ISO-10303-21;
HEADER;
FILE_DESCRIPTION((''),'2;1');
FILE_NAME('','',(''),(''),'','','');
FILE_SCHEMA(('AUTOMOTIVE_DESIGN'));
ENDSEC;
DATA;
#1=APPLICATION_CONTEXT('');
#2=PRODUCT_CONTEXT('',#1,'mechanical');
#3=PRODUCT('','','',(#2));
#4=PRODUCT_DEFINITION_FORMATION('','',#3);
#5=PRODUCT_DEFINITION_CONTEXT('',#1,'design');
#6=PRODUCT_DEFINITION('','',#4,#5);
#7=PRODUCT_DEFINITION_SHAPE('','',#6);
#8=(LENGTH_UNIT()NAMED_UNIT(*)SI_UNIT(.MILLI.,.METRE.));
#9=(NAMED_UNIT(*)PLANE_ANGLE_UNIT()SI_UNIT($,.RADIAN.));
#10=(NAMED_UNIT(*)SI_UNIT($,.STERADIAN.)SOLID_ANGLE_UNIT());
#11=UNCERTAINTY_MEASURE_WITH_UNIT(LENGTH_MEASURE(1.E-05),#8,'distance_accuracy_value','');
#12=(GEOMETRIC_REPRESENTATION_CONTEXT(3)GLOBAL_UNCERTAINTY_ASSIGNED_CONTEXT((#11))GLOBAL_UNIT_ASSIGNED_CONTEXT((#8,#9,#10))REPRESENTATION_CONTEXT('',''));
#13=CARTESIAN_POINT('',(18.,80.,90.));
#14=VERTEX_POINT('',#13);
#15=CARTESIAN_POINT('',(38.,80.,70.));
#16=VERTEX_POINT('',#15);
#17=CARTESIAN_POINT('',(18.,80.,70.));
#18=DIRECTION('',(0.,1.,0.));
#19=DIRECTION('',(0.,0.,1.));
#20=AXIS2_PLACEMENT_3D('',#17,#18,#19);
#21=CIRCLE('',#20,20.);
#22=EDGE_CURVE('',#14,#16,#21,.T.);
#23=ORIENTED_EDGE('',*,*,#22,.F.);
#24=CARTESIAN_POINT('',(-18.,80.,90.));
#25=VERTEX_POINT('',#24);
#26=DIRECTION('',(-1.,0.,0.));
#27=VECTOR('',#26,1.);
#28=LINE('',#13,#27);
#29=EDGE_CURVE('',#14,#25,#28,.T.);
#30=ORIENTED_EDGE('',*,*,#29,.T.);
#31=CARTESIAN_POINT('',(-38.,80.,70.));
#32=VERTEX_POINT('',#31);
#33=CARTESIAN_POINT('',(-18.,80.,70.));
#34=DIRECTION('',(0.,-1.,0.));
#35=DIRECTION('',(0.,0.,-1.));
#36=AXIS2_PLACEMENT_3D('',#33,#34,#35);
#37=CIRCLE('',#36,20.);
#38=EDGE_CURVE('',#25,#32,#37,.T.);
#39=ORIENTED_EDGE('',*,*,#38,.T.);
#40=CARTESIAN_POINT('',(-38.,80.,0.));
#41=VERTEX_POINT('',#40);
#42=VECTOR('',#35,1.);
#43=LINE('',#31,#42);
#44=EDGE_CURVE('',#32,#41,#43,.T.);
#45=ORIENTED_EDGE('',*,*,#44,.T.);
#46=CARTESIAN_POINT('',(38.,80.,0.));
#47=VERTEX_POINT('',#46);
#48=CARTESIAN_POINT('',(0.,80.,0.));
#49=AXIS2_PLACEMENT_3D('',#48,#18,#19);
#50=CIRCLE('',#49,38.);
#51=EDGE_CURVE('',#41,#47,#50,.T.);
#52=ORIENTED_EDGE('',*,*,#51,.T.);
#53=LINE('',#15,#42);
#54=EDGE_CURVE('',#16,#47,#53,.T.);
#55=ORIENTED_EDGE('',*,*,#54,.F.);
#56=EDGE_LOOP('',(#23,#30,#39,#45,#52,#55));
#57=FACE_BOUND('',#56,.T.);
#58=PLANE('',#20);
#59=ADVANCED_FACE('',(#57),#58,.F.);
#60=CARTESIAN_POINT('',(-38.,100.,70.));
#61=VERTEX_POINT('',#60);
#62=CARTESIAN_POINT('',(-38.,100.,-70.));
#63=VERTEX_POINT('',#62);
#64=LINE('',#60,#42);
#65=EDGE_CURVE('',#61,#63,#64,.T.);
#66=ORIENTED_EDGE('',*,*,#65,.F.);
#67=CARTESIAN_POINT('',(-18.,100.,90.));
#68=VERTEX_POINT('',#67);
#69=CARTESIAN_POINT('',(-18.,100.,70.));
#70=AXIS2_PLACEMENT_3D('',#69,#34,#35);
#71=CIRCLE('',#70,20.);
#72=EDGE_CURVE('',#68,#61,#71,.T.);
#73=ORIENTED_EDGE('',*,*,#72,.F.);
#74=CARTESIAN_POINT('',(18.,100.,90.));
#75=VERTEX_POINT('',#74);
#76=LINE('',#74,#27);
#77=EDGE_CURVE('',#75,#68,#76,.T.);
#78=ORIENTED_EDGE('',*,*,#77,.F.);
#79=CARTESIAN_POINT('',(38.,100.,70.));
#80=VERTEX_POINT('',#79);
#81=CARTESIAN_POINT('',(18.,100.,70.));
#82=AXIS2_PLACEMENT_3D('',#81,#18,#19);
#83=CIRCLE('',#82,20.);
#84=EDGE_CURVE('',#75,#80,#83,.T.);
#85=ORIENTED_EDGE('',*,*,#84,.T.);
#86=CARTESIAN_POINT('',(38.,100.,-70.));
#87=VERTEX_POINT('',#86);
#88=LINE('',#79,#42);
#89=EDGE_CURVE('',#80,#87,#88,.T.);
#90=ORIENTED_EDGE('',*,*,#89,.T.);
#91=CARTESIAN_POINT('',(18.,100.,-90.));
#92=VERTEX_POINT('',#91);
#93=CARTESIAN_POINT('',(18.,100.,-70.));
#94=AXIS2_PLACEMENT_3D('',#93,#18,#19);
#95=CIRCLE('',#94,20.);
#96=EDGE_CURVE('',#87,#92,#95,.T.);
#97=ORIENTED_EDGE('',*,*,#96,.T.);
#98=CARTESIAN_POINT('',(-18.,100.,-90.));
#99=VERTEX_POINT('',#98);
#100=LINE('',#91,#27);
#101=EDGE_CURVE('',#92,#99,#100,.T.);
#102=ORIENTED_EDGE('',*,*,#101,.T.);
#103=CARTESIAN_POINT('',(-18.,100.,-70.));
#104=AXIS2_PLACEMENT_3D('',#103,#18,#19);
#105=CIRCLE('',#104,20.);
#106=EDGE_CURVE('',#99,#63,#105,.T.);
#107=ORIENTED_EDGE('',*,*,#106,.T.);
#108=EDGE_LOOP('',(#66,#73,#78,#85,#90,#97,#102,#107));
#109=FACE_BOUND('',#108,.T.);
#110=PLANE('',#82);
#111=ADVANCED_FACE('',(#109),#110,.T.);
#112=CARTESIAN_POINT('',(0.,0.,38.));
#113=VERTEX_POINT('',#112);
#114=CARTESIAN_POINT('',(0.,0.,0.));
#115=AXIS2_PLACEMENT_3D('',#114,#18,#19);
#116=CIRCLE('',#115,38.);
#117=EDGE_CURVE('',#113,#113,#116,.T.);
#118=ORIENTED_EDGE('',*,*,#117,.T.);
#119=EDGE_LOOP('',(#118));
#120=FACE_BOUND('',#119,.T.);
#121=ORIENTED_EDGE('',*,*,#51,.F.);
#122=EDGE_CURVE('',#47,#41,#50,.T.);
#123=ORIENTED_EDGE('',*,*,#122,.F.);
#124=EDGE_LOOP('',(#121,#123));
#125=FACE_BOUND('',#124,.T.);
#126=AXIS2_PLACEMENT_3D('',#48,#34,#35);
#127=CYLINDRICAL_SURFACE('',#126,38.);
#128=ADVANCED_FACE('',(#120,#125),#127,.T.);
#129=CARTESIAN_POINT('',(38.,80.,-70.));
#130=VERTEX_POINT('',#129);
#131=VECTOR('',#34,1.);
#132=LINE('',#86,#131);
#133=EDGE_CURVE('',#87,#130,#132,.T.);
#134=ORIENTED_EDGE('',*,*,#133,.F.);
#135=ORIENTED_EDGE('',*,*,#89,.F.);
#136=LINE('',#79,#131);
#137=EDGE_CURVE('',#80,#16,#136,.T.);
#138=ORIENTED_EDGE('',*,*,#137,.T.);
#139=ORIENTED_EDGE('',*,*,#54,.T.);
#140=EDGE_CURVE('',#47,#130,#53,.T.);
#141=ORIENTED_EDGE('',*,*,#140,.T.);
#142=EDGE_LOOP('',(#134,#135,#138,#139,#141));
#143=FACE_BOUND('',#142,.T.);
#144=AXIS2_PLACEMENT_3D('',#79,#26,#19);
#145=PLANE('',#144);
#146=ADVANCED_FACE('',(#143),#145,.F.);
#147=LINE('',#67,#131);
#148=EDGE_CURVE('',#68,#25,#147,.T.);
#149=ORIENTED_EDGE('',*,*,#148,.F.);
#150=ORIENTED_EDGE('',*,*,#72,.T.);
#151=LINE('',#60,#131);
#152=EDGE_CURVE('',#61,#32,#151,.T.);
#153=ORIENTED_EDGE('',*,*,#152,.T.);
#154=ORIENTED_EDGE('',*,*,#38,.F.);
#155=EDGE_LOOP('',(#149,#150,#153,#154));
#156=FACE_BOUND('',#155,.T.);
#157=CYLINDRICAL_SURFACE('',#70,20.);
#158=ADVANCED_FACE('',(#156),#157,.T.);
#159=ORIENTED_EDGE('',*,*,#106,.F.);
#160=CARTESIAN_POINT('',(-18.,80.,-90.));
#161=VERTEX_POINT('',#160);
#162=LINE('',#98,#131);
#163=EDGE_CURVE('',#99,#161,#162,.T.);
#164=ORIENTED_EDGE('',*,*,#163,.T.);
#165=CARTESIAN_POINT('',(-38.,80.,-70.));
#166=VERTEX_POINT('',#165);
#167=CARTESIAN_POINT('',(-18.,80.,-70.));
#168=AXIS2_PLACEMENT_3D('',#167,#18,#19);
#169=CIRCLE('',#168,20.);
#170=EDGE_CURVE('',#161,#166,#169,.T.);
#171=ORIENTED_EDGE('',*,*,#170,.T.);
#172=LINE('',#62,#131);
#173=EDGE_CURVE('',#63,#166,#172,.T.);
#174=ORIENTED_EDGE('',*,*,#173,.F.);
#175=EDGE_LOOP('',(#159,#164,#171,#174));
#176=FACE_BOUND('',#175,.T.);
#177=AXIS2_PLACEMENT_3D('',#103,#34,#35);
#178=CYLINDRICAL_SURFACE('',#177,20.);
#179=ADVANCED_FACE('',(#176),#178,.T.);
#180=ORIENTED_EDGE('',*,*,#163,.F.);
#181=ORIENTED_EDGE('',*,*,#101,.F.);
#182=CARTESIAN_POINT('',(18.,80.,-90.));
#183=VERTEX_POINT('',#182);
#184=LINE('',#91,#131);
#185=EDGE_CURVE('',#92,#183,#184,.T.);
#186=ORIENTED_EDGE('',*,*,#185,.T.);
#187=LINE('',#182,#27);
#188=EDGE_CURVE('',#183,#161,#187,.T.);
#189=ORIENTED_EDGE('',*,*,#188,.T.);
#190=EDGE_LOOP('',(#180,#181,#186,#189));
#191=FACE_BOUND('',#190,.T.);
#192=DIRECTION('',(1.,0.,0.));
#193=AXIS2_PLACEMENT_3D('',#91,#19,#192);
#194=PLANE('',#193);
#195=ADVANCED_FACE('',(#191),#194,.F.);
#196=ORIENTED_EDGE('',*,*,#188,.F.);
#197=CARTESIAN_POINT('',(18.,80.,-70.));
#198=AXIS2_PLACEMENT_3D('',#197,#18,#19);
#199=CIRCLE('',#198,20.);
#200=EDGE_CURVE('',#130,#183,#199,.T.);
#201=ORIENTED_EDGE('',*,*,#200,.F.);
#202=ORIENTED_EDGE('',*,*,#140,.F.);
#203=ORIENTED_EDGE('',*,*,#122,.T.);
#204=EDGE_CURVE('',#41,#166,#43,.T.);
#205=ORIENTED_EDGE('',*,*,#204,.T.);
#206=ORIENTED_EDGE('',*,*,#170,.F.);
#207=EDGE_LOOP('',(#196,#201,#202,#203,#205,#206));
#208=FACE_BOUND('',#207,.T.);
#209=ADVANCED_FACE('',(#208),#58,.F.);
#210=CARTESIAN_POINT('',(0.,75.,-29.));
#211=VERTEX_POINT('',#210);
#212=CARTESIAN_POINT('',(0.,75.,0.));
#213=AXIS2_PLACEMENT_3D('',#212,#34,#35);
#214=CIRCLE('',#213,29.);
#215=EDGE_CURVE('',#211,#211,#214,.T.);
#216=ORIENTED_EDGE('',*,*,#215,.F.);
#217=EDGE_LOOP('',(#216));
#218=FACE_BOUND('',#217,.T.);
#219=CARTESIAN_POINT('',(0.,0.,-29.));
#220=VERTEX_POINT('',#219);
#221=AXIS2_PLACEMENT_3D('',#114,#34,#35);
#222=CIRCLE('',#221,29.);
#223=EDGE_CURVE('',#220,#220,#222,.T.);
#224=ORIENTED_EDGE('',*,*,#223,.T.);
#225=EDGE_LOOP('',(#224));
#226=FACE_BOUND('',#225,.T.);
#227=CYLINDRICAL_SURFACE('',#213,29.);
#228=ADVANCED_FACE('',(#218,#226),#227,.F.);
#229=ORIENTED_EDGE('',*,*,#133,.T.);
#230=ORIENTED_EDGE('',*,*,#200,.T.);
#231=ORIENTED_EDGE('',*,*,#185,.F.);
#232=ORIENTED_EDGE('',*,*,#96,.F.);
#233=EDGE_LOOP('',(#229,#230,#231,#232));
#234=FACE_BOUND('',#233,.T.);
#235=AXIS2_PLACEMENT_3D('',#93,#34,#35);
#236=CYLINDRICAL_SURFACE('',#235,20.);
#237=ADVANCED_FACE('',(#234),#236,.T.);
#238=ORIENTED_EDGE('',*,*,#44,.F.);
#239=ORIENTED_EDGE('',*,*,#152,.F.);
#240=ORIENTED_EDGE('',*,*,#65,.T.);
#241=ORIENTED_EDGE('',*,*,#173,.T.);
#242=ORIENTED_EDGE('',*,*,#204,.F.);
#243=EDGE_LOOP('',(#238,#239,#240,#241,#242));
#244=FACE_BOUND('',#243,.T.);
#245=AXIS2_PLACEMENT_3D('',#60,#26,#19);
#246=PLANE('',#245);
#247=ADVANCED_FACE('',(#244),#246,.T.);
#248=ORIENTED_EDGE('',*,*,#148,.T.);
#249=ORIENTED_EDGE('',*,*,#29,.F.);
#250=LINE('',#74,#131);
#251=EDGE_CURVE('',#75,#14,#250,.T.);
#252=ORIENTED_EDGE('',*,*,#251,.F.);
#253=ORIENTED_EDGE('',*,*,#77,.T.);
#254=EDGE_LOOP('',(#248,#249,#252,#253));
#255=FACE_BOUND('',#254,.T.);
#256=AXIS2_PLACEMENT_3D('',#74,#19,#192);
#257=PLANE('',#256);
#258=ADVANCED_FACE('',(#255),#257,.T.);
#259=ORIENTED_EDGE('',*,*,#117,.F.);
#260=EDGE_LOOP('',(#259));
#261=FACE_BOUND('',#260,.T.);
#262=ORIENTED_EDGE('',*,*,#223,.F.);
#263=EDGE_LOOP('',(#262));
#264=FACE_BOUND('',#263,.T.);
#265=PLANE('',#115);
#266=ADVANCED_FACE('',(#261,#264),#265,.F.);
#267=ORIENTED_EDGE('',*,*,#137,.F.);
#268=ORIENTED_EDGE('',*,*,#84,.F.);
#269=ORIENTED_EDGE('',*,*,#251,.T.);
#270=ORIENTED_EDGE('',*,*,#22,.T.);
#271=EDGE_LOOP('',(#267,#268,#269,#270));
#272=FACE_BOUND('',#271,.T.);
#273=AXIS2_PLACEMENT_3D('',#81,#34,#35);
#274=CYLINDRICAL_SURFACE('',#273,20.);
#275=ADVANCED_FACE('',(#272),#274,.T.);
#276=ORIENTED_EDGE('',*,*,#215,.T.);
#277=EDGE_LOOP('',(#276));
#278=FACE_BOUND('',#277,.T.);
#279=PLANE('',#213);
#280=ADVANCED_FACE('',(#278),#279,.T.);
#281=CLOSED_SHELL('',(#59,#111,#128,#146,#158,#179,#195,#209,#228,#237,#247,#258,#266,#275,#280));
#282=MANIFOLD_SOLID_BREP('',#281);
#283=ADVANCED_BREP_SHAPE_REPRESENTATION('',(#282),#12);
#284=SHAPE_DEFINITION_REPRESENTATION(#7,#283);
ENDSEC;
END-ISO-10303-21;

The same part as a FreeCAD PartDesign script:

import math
import FreeCAD as App
import Part
import Sketcher

V = App.Vector

doc = App.newDocument("Part")
body = doc.addObject("PartDesign::Body", "Body")

# Sketch on XZ plane
sketch1 = body.newObject("Sketcher::SketchObject", "Sketch")
sketch1.AttachmentSupport = (doc.getObject("XZ_Plane"), [""])
sketch1.MapMode = "FlatFace"
sketch1.addGeometry(Part.Circle(V(0, 0, 0), V(0, 0, 1), 38), False)
sketch1.addConstraint(Sketcher.Constraint("Coincident", 0, 3, -1, 1))
sketch1.addConstraint(Sketcher.Constraint("Diameter", 0, 76.0))
pad1 = body.newObject("PartDesign::Pad", "Pad")
pad1.Profile = sketch1
pad1.Length = 80
pad1.Reversed = True

# Sketch on XZ plane
sketch2 = body.newObject("Sketcher::SketchObject", "Sketch001")
sketch2.AttachmentSupport = (doc.getObject("XZ_Plane"), [""])
sketch2.MapMode = "FlatFace"
sketch2.addGeometry(Part.Circle(V(0, 0, 0), V(0, 0, 1), 29), False)
sketch2.addConstraint(Sketcher.Constraint("Coincident", 0, 3, -1, 1))
sketch2.addConstraint(Sketcher.Constraint("Diameter", 0, 58.0))
pocket1 = body.newObject("PartDesign::Pocket", "Pocket")
pocket1.Profile = sketch2
pocket1.Length = 75

# Sketch on XZ plane
sketch3 = body.newObject("Sketcher::SketchObject", "Sketch002")
sketch3.AttachmentSupport = (doc.getObject("XZ_Plane"), [""])
sketch3.MapMode = "FlatFace"
sketch3.AttachmentOffset = App.Placement(V(0, 0, -80), App.Rotation())
sketch3.addGeometry(Part.LineSegment(V(-18, 90, 0), V(18, 90, 0)), False)
sketch3.addGeometry(Part.ArcOfCircle(Part.Circle(V(18, 70, 0), V(0, 0, 1), 20), math.radians(0), math.radians(90)), False)
sketch3.addGeometry(Part.LineSegment(V(38, 70, 0), V(38, -70, 0)), False)
sketch3.addGeometry(Part.ArcOfCircle(Part.Circle(V(18, -70, 0), V(0, 0, 1), 20), math.radians(-90), math.radians(0)), False)
sketch3.addGeometry(Part.LineSegment(V(18, -90, 0), V(-18, -90, 0)), False)
sketch3.addGeometry(Part.ArcOfCircle(Part.Circle(V(-18, -70, 0), V(0, 0, 1), 20), math.radians(180), math.radians(270)), False)
sketch3.addGeometry(Part.LineSegment(V(-38, -70, 0), V(-38, 70, 0)), False)
sketch3.addGeometry(Part.ArcOfCircle(Part.Circle(V(-18, 70, 0), V(0, 0, 1), 20), math.radians(90), math.radians(180)), False)
sketch3.addConstraint(Sketcher.Constraint("Tangent", 0, 2, 1, 2))
sketch3.addConstraint(Sketcher.Constraint("Tangent", 1, 1, 2, 1))
sketch3.addConstraint(Sketcher.Constraint("Tangent", 2, 2, 3, 2))
sketch3.addConstraint(Sketcher.Constraint("Tangent", 3, 1, 4, 1))
sketch3.addConstraint(Sketcher.Constraint("Tangent", 4, 2, 5, 2))
sketch3.addConstraint(Sketcher.Constraint("Tangent", 5, 1, 6, 1))
sketch3.addConstraint(Sketcher.Constraint("Tangent", 6, 2, 7, 2))
sketch3.addConstraint(Sketcher.Constraint("Tangent", 7, 1, 0, 1))
sketch3.addConstraint(Sketcher.Constraint("Horizontal", 0))
sketch3.addConstraint(Sketcher.Constraint("Vertical", 2))
sketch3.addConstraint(Sketcher.Constraint("Horizontal", 4))
sketch3.addConstraint(Sketcher.Constraint("Vertical", 6))
sketch3.addConstraint(Sketcher.Constraint("Equal", 1, 3))
sketch3.addConstraint(Sketcher.Constraint("Equal", 3, 5))
sketch3.addConstraint(Sketcher.Constraint("Equal", 5, 7))
sketch3.addConstraint(Sketcher.Constraint("Symmetric", 1, 3, 5, 3, -1, 1))
sketch3.addConstraint(Sketcher.Constraint("Radius", 1, 20.0))
sketch3.addConstraint(Sketcher.Constraint("DistanceX", 0, 1, 0, 2, 36.0))
sketch3.addConstraint(Sketcher.Constraint("DistanceY", 2, 2, 2, 1, 140.0))
pad2 = body.newObject("PartDesign::Pad", "Pad001")
pad2.Profile = sketch3
pad2.Length = 20
pad2.Reversed = True

doc.recompute()
